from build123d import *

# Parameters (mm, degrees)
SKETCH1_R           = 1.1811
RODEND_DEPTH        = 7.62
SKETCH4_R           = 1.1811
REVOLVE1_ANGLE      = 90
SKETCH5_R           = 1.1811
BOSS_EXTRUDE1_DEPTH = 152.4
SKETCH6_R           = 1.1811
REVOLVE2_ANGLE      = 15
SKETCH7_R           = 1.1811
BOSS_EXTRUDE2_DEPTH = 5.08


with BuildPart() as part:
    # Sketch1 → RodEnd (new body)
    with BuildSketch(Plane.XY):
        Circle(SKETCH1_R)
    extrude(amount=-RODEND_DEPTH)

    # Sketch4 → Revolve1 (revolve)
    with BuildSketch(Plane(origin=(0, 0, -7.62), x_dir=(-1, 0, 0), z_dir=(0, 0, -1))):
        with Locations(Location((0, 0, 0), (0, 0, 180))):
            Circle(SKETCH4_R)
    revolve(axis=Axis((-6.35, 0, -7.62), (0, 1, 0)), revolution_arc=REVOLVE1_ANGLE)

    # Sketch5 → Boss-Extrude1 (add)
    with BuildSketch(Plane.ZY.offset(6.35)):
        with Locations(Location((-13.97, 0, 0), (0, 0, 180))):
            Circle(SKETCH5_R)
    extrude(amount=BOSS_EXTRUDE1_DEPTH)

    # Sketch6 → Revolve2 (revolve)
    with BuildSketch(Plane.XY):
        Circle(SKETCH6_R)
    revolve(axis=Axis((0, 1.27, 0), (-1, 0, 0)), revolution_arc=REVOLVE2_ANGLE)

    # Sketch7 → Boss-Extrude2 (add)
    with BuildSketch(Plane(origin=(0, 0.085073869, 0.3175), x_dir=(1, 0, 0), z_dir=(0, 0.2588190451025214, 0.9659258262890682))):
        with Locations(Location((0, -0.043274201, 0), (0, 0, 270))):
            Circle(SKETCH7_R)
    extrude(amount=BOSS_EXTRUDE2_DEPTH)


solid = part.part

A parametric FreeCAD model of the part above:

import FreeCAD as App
import Part
import Sketcher

V = App.Vector
Q = App.Units.Quantity

doc = App.newDocument("Part")
body = doc.addObject("PartDesign::Body", "Body")

# Sketch on XY plane
sketch1 = body.newObject("Sketcher::SketchObject", "Sketch")
sketch1.AttachmentSupport = (doc.getObject("XY_Plane"), [""])
sketch1.MapMode = "FlatFace"
sketch1.addGeometry(Part.Circle(V(0, 0, 0), V(0, 0, 1), 1.2), False)
sketch1.addConstraint([
    Sketcher.Constraint("Coincident", 0, 3, -1, 1),
    Sketcher.Constraint("Diameter", 0, Q("0.093 in")),
])
pad1 = body.newObject("PartDesign::Pad", "Pad")
pad1.Profile = sketch1
pad1.Length = Q("0.3 in")
pad1.Reversed = True

# Sketch on XY plane
sketch2 = body.newObject("Sketcher::SketchObject", "Sketch001")
sketch2.AttachmentSupport = (doc.getObject("XY_Plane"), [""])
sketch2.MapMode = "FlatFace"
sketch2.AttachmentOffset = App.Placement(V(0, 0, -0.3 * 25.4), App.Rotation())
sketch2.addGeometry(Part.Circle(V(0, 0, 0), V(0, 0, 1), 1.2), False)
sketch2.addGeometry(Part.LineSegment(V(-6.3, 0, 0), V(-6.3, 10, 0)), True)  # axis
sketch2.addConstraint([
    Sketcher.Constraint("Vertical", 1),
    Sketcher.Constraint("Coincident", 0, 3, -1, 1),
    Sketcher.Constraint("PointOnObject", 1, 1, -1),
    Sketcher.Constraint("Diameter", 0, Q("0.093 in")),
    Sketcher.Constraint("DistanceX", 1, 1, -1, 1, Q("0.25 in")),
    Sketcher.Constraint("DistanceY", 1, 1, 1, 2, Q("10 mm")),
])
revolution = body.newObject("PartDesign::Revolution", "Revolution")
revolution.Profile = sketch2
revolution.ReferenceAxis = (sketch2, ["Axis0"])
revolution.Angle = 90

# Sketch on YZ plane
sketch3 = body.newObject("Sketcher::SketchObject", "Sketch002")
sketch3.AttachmentSupport = (doc.getObject("YZ_Plane"), [""])
sketch3.MapMode = "FlatFace"
sketch3.AttachmentOffset = App.Placement(V(0, 0, -0.25 * 25.4), App.Rotation())
sketch3.addGeometry(Part.Circle(V(0, -14, 0), V(0, 0, 1), 1.2), False)
sketch3.addConstraint([
    Sketcher.Constraint("PointOnObject", 0, 3, -2),
    Sketcher.Constraint("Diameter", 0, Q("0.093 in")),
    Sketcher.Constraint("DistanceY", 0, 3, -1, 1, Q("0.55 in")),
])
pad2 = body.newObject("PartDesign::Pad", "Pad001")
pad2.Profile = sketch3
pad2.Length = Q("6 in")
pad2.Reversed = True

# Sketch on XY plane
sketch4 = body.newObject("Sketcher::SketchObject", "Sketch003")
sketch4.AttachmentSupport = (doc.getObject("XY_Plane"), [""])
sketch4.MapMode = "FlatFace"
sketch4.addGeometry(Part.Circle(V(0, 0, 0), V(0, 0, 1), 1.2), False)
sketch4.addGeometry(Part.LineSegment(V(0, 1.3, 0), V(-10, 1.3, 0)), True)  # axis
sketch4.addConstraint([
    Sketcher.Constraint("Horizontal", 1),
    Sketcher.Constraint("Coincident", 0, 3, -1, 1),
    Sketcher.Constraint("PointOnObject", 1, 1, -2),
    Sketcher.Constraint("Diameter", 0, Q("0.093 in")),
    Sketcher.Constraint("DistanceY", -1, 1, 1, 1, Q("0.05 in")),
    Sketcher.Constraint("DistanceX", 1, 2, 1, 1, Q("10 mm")),
])
revolution2 = body.newObject("PartDesign::Revolution", "Revolution001")
revolution2.Profile = sketch4
revolution2.ReferenceAxis = (sketch4, ["Axis0"])
revolution2.Angle = 15

# Sketch on an angled plane
sketch5 = body.newObject("Sketcher::SketchObject", "Sketch004")
sketch5.Placement = App.Placement(V(0, 0.085074, 0.3175), App.Rotation(V(1, 0, 0), V(0, 0.965925826, -0.258819045), V(0, 0.258819045, 0.965925826), "ZXY"))
sketch5.addGeometry(Part.Circle(V(0, 0, 0), V(0, 0, 1), 1.2), False)
sketch5.addConstraint([
    Sketcher.Constraint("PointOnObject", 0, 3, -2),
    Sketcher.Constraint("Diameter", 0, Q("0.093 in")),
    Sketcher.Constraint("DistanceY", 0, 3, -1, 1, Q("0.043274 mm")),
])
pad3 = body.newObject("PartDesign::Pad", "Pad002")
pad3.Profile = sketch5
pad3.Length = Q("0.2 in")

doc.recompute()
